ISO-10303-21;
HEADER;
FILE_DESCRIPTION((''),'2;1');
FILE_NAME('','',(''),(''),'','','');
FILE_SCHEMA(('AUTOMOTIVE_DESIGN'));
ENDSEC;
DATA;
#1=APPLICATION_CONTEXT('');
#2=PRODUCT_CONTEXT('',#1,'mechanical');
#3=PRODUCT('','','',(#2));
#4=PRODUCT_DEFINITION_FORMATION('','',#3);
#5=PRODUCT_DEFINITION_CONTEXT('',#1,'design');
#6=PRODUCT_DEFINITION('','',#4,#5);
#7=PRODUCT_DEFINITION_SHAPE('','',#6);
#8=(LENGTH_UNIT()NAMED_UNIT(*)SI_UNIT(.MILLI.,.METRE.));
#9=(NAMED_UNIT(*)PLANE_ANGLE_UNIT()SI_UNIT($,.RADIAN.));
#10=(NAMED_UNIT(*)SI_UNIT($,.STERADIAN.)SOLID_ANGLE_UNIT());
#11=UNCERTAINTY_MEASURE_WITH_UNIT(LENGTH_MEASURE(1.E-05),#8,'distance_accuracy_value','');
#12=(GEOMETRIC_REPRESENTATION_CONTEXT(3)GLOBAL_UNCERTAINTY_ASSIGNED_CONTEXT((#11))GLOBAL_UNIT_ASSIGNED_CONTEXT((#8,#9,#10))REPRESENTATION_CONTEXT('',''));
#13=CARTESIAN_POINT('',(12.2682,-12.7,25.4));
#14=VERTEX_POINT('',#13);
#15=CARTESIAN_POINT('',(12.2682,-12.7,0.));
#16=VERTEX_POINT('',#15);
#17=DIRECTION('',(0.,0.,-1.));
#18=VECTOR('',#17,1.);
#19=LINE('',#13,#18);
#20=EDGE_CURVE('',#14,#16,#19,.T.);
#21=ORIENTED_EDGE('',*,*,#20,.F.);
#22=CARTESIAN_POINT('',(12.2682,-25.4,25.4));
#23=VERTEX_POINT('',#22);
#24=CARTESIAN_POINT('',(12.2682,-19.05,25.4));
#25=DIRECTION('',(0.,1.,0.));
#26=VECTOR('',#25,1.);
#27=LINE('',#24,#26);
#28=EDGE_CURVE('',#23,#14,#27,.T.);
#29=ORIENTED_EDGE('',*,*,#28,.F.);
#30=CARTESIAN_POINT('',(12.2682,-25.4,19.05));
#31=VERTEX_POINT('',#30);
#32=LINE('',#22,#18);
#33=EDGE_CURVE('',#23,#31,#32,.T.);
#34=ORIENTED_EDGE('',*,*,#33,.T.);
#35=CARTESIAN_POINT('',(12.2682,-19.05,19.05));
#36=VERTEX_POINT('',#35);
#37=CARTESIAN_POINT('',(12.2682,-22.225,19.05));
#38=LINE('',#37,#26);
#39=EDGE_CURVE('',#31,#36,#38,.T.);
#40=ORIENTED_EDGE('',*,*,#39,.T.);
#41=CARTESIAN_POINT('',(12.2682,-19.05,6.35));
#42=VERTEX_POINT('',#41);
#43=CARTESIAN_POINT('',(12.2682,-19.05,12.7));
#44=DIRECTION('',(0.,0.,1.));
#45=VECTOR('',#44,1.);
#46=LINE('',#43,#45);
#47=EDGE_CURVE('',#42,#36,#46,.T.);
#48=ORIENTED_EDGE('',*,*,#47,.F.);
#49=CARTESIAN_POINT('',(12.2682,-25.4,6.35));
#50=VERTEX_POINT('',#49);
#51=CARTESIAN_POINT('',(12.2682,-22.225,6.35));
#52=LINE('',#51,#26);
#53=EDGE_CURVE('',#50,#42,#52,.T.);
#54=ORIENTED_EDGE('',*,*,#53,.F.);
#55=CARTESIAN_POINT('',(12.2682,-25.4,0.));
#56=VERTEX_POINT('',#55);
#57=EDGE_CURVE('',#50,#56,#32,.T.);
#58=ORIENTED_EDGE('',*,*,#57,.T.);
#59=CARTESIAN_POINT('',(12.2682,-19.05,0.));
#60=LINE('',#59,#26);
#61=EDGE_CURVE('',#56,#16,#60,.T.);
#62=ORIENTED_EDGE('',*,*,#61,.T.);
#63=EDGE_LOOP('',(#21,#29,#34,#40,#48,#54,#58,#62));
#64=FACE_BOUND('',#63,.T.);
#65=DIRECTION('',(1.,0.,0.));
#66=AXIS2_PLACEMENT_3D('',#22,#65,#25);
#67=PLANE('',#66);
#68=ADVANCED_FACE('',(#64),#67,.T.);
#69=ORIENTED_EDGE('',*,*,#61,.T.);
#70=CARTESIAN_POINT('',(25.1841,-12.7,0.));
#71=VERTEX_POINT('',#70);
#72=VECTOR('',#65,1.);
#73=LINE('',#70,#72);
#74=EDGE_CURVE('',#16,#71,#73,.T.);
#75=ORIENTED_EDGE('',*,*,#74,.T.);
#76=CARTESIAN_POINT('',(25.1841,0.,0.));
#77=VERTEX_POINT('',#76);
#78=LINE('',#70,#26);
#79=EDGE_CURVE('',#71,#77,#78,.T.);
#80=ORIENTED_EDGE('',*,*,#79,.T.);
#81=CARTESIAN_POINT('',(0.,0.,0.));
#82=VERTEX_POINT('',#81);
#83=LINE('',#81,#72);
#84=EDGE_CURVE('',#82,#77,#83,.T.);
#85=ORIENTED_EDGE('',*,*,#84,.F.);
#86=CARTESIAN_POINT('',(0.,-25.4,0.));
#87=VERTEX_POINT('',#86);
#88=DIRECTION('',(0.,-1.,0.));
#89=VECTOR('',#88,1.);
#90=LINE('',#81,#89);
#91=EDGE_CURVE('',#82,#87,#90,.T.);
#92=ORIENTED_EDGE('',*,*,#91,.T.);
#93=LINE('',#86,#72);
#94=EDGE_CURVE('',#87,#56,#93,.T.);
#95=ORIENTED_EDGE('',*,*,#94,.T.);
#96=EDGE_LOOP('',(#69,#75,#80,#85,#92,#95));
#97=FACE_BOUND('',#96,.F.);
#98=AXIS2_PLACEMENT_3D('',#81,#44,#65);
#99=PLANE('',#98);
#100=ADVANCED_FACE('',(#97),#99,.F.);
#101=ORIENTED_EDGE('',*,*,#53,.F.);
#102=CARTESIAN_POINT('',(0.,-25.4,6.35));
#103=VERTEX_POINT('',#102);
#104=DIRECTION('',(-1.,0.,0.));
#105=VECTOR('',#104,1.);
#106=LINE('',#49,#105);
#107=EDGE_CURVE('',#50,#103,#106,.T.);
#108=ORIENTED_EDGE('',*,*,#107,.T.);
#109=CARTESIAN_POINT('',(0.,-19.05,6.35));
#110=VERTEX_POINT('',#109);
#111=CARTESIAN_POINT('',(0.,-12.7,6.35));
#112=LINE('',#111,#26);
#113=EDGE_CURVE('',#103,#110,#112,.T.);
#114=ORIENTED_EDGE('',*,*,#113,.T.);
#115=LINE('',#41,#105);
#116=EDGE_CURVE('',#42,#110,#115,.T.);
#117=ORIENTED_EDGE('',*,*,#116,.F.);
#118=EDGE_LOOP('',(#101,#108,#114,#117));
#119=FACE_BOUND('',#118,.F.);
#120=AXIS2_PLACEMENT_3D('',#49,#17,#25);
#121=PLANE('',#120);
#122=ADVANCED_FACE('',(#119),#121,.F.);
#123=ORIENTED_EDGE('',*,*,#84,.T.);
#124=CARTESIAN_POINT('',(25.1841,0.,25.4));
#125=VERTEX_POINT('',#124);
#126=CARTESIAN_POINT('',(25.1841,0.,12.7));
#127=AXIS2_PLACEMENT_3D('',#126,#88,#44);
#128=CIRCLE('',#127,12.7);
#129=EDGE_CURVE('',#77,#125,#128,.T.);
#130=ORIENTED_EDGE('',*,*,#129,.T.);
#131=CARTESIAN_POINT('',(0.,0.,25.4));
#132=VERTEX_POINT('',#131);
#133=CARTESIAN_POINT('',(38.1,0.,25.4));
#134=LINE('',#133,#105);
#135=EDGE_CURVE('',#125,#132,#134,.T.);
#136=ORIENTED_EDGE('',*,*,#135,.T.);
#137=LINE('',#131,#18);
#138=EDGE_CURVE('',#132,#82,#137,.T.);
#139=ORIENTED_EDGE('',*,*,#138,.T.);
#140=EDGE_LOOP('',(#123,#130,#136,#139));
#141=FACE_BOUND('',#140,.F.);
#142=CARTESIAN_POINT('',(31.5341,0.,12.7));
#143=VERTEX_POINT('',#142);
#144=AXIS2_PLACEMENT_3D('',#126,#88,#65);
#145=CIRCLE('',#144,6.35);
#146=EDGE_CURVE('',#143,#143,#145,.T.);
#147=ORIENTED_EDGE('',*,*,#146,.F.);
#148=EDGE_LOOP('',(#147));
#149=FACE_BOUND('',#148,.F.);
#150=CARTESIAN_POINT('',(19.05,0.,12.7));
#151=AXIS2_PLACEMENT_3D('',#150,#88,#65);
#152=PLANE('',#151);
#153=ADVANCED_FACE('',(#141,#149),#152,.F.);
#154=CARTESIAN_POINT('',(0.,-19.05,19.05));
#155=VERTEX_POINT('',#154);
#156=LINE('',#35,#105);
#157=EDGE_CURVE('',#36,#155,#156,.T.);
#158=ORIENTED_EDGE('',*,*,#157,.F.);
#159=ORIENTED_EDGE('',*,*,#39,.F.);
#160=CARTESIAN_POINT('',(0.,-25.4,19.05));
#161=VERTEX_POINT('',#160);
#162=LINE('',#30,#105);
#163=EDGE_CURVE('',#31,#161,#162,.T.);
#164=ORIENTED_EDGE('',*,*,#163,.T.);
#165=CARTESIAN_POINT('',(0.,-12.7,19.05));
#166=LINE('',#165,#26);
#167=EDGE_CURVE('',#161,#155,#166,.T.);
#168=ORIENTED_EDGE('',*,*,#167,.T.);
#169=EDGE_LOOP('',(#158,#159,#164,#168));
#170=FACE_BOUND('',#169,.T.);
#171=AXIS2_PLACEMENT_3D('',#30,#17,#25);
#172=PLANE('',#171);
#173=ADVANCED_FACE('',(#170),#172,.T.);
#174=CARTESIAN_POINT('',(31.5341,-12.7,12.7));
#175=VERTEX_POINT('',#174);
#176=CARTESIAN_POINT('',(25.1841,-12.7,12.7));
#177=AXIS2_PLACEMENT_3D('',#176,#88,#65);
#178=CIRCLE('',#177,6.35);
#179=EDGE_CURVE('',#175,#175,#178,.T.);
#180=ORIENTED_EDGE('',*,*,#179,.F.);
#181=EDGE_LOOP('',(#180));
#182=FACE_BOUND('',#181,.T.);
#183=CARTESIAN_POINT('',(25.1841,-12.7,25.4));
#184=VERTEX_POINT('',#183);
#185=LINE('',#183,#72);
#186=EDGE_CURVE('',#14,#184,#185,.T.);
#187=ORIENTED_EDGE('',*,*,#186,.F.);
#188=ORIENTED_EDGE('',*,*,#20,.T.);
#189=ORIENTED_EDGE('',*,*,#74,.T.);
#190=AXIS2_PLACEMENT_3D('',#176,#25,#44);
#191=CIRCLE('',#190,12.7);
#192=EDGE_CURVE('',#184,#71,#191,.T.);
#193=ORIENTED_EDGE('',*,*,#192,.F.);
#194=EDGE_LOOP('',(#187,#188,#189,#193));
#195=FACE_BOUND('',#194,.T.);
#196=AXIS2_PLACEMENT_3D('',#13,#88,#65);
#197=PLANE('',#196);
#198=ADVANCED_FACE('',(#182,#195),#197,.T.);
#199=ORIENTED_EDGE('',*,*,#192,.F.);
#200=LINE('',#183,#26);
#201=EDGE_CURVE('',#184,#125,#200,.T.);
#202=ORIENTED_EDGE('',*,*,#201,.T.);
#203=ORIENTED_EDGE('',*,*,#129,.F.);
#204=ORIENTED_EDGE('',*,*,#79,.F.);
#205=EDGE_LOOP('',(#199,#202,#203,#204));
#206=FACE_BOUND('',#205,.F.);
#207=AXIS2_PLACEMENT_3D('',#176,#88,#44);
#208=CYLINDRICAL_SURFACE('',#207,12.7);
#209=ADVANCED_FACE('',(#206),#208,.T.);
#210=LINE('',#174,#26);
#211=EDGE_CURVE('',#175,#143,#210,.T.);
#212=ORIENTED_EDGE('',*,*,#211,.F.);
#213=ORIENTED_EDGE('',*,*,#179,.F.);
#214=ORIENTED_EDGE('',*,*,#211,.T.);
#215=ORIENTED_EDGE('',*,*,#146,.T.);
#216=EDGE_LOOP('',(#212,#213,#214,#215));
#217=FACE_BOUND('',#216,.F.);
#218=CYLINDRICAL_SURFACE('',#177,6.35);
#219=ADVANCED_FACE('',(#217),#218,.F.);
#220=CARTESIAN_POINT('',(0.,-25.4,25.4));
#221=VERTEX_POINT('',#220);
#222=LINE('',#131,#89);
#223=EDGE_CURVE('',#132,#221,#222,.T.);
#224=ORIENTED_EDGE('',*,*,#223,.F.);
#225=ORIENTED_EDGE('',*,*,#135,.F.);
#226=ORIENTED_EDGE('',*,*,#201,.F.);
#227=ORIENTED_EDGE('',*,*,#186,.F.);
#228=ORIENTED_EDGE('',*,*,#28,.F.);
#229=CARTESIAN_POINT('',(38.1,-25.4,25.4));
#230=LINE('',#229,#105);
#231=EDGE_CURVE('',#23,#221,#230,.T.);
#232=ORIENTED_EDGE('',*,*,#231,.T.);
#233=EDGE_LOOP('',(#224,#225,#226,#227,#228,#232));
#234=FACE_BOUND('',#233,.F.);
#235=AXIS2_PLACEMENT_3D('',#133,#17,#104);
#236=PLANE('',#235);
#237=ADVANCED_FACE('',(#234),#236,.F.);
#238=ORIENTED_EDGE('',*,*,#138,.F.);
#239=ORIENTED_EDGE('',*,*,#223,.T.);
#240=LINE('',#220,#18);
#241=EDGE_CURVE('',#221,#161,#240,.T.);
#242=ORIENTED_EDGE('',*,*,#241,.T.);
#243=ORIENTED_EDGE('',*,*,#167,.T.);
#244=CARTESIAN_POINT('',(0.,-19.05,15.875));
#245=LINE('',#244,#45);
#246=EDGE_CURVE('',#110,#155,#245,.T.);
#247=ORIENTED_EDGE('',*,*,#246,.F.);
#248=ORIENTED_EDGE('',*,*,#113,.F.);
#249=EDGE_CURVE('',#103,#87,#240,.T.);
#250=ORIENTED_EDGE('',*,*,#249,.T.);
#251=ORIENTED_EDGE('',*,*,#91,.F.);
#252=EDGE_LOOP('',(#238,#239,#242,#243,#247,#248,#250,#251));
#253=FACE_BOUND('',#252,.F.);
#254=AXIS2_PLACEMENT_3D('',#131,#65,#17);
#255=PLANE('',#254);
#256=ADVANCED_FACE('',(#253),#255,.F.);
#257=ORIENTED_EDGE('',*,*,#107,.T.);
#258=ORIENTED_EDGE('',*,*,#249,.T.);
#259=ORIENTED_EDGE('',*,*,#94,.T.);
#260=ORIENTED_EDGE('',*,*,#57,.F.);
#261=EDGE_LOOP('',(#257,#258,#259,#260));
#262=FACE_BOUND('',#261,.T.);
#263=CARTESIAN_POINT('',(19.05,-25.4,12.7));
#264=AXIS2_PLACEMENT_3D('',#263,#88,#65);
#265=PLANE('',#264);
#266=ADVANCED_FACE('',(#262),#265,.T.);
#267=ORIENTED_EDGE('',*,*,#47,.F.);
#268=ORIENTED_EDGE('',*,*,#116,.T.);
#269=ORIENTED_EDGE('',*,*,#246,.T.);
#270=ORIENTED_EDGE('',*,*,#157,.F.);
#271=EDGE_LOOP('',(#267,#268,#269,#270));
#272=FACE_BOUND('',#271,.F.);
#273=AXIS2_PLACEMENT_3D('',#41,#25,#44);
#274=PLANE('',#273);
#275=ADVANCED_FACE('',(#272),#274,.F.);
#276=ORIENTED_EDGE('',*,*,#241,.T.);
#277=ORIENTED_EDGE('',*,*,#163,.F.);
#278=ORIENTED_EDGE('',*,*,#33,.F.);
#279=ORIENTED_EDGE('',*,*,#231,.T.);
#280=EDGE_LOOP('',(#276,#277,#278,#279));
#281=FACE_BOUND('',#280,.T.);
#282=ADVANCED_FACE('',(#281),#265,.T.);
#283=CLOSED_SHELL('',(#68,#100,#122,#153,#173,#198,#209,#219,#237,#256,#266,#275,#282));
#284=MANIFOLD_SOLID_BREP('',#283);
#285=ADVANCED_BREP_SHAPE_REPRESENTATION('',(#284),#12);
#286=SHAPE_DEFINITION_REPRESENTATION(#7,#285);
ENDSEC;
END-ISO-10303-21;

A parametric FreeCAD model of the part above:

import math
import FreeCAD as App
import Part
import Sketcher
from FreeCAD import Vector
Q = App.Units.Quantity


def add_polygon(sketch, points):
    """Adds a closed chain of lines whose ends are joined by coincident constraints."""
    first, n = sketch.GeometryCount, len(points)
    for a, b in zip(points, points[1:] + points[:1]):
        sketch.addGeometry(Part.LineSegment(App.Vector(*a, 0), App.Vector(*b, 0)), False)
    for i in range(n):
        sketch.addConstraint(Sketcher.Constraint("Coincident", first + i, 2, first + (i + 1) % n, 1))

doc = App.newDocument("Part")
body = doc.addObject("PartDesign::Body", "Body")

sketch1 = body.newObject("Sketcher::SketchObject", "Sketch")
sketch1.AttachmentSupport = (doc.getObject("XZ_Plane"), [""])
sketch1.MapMode = "FlatFace"
add_polygon(sketch1, [(0, 25), (0, 0), (38, 0), (38, 25)])
sketch1.addConstraint([
    Sketcher.Constraint("Vertical", 0),
    Sketcher.Constraint("Horizontal", 1),
    Sketcher.Constraint("Vertical", 2),
    Sketcher.Constraint("Horizontal", 3),
    Sketcher.Constraint("Coincident", 0, 2, -1, 1),
    Sketcher.Constraint("DistanceY", 0, 2, 0, 1, Q("1 in")),
    Sketcher.Constraint("DistanceX", 1, 1, 1, 2, Q("1.5 in")),
])
pad1 = body.newObject("PartDesign::Pad", "Pad")
pad1.Profile = sketch1
pad1.Length = Q("1 in")

sketch2 = body.newObject("Sketcher::SketchObject", "Sketch001")
sketch2.AttachmentSupport = (doc.getObject("XY_Plane"), [""])
sketch2.MapMode = "FlatFace"
sketch2.AttachmentOffset = App.Placement(Vector(0, 0, 1 * 25.4), App.Rotation())
add_polygon(sketch2, [(12, -13), (12, -25), (38, -25), (38, -13)])
sketch2.addConstraint([
    Sketcher.Constraint("Vertical", 0),
    Sketcher.Constraint("Horizontal", 1),
    Sketcher.Constraint("Vertical", 2),
    Sketcher.Constraint("Horizontal", 3),
    Sketcher.Constraint("DistanceY", 0, 2, 0, 1, Q("0.5 in")),
    Sketcher.Constraint("DistanceY", 0, 2, -1, 1, Q("1 in")),
    Sketcher.Constraint("DistanceX", -1, 1, 1, 2, Q("1.5 in")),
    Sketcher.Constraint("DistanceX", 1, 1, 1, 2, Q("1.017 in")),
])
pocket1 = body.newObject("PartDesign::Pocket", "Pocket")
pocket1.Profile = sketch2
pocket1.Length = Q("1 in")

sketch3 = body.newObject("Sketcher::SketchObject", "Sketch002")
sketch3.AttachmentSupport = (doc.getObject("XZ_Plane"), [""])
sketch3.MapMode = "FlatFace"
sketch3.AttachmentOffset = App.Placement(Vector(0, 0, 0.5 * 25.4), App.Rotation())
sketch3.addGeometry([
    Part.LineSegment(Vector(38, 25, 0), Vector(25, 25, 0)),
    Part.ArcOfCircle(Part.Circle(Vector(25, 13, 0), Vector(0, 0, 1), 13), math.radians(-90), math.radians(90)),
    Part.LineSegment(Vector(25, 0, 0), Vector(38, 0, 0)),
    Part.LineSegment(Vector(38, 0, 0), Vector(38, 25, 0)),
], False)
sketch3.addConstraint([
    Sketcher.Constraint("Tangent", 0, 2, 1, 2),
    Sketcher.Constraint("Tangent", 1, 1, 2, 1),
    Sketcher.Constraint("Coincident", 2, 2, 3, 1),
    Sketcher.Constraint("Coincident", 3, 2, 0, 1),
    Sketcher.Constraint("Horizontal", 0),
    Sketcher.Constraint("Horizontal", 2),
    Sketcher.Constraint("Vertical", 3),
    Sketcher.Constraint("PointOnObject", 1, 1, -1),
    Sketcher.Constraint("Radius", 1, Q("0.5 in")),
    Sketcher.Constraint("DistanceX", -1, 1, 2, 2, Q("1.5 in")),
    Sketcher.Constraint("DistanceX", 0, 2, 0, 1, Q("0.5085 in")),
])
pocket2 = body.newObject("PartDesign::Pocket", "Pocket001")
pocket2.Profile = sketch3
pocket2.Length = Q("1 in")

sketch4 = body.newObject("Sketcher::SketchObject", "Sketch003")
sketch4.AttachmentSupport = (doc.getObject("YZ_Plane"), [""])
sketch4.MapMode = "FlatFace"
sketch4.AttachmentOffset = App.Placement(Vector(0, 0, 0.483 * 25.4), App.Rotation())
add_polygon(sketch4, [(-25, 19), (-25, 6), (-19, 6), (-19, 19)])
sketch4.addConstraint([
    Sketcher.Constraint("Vertical", 0),
    Sketcher.Constraint("Horizontal", 1),
    Sketcher.Constraint("Vertical", 2),
    Sketcher.Constraint("Horizontal", 3),
    Sketcher.Constraint("DistanceY", 0, 2, 0, 1, Q("0.5 in")),
    Sketcher.Constraint("DistanceX", 0, 2, -1, 1, Q("1 in")),
    Sketcher.Constraint("DistanceX", 1, 1, 1, 2, Q("0.25 in")),
    Sketcher.Constraint("DistanceY", -1, 1, 0, 2, Q("0.25 in")),
])
pocket3 = body.newObject("PartDesign::Pocket", "Pocket002")
pocket3.Profile = sketch4
pocket3.Length = Q("1 in")

sketch5 = body.newObject("Sketcher::SketchObject", "Sketch004")
sketch5.AttachmentSupport = (doc.getObject("XZ_Plane"), [""])
sketch5.MapMode = "FlatFace"
sketch5.AttachmentOffset = App.Placement(Vector(0, 0, 0.5 * 25.4), App.Rotation())
sketch5.addGeometry(Part.Circle(Vector(25, 13, 0), Vector(0, 0, 1), 6), False)
sketch5.addConstraint([
    Sketcher.Constraint("Diameter", 0, Q("0.5 in")),
    Sketcher.Constraint("DistanceY", -1, 1, 0, 3, Q("0.5 in")),
    Sketcher.Constraint("DistanceX", -1, 1, 0, 3, Q("0.9915 in")),
])
pocket4 = body.newObject("PartDesign::Pocket", "Pocket003")
pocket4.Profile = sketch5
pocket4.Length = Q("1 in")

doc.recompute()
